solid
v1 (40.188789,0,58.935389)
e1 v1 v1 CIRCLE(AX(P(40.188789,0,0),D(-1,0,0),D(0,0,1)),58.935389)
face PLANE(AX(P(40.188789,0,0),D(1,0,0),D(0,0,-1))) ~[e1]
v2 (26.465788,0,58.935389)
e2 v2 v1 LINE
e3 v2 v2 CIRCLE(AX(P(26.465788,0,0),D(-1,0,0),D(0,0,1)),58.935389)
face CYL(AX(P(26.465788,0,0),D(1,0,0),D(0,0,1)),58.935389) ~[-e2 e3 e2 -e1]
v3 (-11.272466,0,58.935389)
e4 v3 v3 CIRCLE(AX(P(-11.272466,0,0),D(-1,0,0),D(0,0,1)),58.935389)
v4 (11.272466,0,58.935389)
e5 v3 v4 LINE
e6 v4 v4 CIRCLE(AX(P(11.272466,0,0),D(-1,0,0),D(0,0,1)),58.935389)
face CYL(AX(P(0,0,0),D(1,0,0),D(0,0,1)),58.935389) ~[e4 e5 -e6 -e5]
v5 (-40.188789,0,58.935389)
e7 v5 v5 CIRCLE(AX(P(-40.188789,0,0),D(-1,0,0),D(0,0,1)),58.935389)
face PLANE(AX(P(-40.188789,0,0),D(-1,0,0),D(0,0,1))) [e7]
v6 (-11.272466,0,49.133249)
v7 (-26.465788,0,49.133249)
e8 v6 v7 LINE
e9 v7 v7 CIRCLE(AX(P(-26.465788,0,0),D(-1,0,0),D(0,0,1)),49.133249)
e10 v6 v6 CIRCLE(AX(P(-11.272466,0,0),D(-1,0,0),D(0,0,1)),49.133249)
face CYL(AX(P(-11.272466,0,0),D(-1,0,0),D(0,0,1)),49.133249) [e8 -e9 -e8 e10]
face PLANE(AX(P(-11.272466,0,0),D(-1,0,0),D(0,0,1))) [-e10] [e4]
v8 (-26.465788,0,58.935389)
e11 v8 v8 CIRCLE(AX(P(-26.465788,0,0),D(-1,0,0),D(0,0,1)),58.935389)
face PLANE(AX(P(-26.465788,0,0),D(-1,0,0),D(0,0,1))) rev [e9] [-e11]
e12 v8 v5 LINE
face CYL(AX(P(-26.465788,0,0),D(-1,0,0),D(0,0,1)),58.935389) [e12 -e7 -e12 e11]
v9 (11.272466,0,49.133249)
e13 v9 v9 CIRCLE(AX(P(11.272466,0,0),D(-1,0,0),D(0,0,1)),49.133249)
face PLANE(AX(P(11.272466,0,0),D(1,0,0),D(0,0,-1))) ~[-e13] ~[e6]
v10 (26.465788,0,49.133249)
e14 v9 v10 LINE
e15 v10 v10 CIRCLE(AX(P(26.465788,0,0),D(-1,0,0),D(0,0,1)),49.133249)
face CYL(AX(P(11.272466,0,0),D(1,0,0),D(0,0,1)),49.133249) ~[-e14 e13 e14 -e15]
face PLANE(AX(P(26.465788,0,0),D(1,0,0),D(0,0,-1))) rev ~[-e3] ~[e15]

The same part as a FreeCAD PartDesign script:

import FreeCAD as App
import Part
import Sketcher
from FreeCAD import Vector
Q = App.Units.Quantity

doc = App.newDocument("Part")
body = doc.addObject("PartDesign::Body", "Body")

sketch1 = body.newObject("Sketcher::SketchObject", "Sketch")
sketch1.AttachmentSupport = (doc.getObject("XZ_Plane"), [""])
sketch1.MapMode = "FlatFace"
sketch1.addGeometry(Part.LineSegment(Vector(-40, 59, 0), Vector(-40, 0, 0)), False)
sketch1.addGeometry(Part.LineSegment(Vector(-40, 0, 0), Vector(0, 0, 0)), False)
sketch1.addGeometry(Part.LineSegment(Vector(0, 0, 0), Vector(0, 59, 0)), False)
sketch1.addGeometry(Part.LineSegment(Vector(0, 59, 0), Vector(-11, 59, 0)), False)
sketch1.addGeometry(Part.LineSegment(Vector(-11, 59, 0), Vector(-11, 49, 0)), False)
sketch1.addGeometry(Part.LineSegment(Vector(-11, 49, 0), Vector(-26, 49, 0)), False)
sketch1.addGeometry(Part.LineSegment(Vector(-26, 49, 0), Vector(-26, 59, 0)), False)
sketch1.addGeometry(Part.LineSegment(Vector(-26, 59, 0), Vector(-40, 59, 0)), False)
sketch1.addConstraint(Sketcher.Constraint("Coincident", 0, 2, 1, 1))
sketch1.addConstraint(Sketcher.Constraint("Coincident", 1, 2, 2, 1))
sketch1.addConstraint(Sketcher.Constraint("Coincident", 2, 2, 3, 1))
sketch1.addConstraint(Sketcher.Constraint("Coincident", 3, 2, 4, 1))
sketch1.addConstraint(Sketcher.Constraint("Coincident", 4, 2, 5, 1))
sketch1.addConstraint(Sketcher.Constraint("Coincident", 5, 2, 6, 1))
sketch1.addConstraint(Sketcher.Constraint("Coincident", 6, 2, 7, 1))
sketch1.addConstraint(Sketcher.Constraint("Coincident", 7, 2, 0, 1))
sketch1.addConstraint(Sketcher.Constraint("Vertical", 0))
sketch1.addConstraint(Sketcher.Constraint("Horizontal", 1))
sketch1.addConstraint(Sketcher.Constraint("Vertical", 2))
sketch1.addConstraint(Sketcher.Constraint("Horizontal", 3))
sketch1.addConstraint(Sketcher.Constraint("Vertical", 4))
sketch1.addConstraint(Sketcher.Constraint("Horizontal", 5))
sketch1.addConstraint(Sketcher.Constraint("Vertical", 6))
sketch1.addConstraint(Sketcher.Constraint("Horizontal", 7))
sketch1.addConstraint(Sketcher.Constraint("Coincident", 1, 2, -1, 1))
sketch1.addConstraint(Sketcher.Constraint("Horizontal", 3, 2, 6, 2))
sketch1.addConstraint(Sketcher.Constraint("DistanceX", 7, 2, 7, 1, Q("13.723001 mm")))
sketch1.addConstraint(Sketcher.Constraint("DistanceX", 1, 1, 1, 2, Q("40.188789 mm")))
sketch1.addConstraint(Sketcher.Constraint("DistanceY", 0, 2, 0, 1, Q("58.935389 mm")))
sketch1.addConstraint(Sketcher.Constraint("DistanceY", 4, 2, 4, 1, Q("9.80214 mm")))
sketch1.addConstraint(Sketcher.Constraint("DistanceX", 3, 2, 3, 1, Q("11.272466 mm")))
revolution = body.newObject("PartDesign::Revolution", "Revolution")
revolution.Profile = sketch1
revolution.ReferenceAxis = (sketch1, ["H_Axis"])
revolution.Angle = 360
body2 = doc.addObject("PartDesign::Body", "Body001")
doc.recompute()

body2.BaseFeature = body
doc.recompute()

mirroring = doc.addObject("Part::Mirroring", "Mirroring")
mirroring.Source = body
mirroring.Base = Vector(0, 0, 0)
mirroring.Normal = Vector(1, 0, 0)
body3 = doc.addObject("PartDesign::Body", "Body002")
body3.BaseFeature = mirroring
boolean = body2.newObject("PartDesign::Boolean", "Boolean")
boolean.Type = "Fuse"
boolean.addObjects([body3])
doc.recompute()
mirroring.Visibility = False

doc.recompute()
